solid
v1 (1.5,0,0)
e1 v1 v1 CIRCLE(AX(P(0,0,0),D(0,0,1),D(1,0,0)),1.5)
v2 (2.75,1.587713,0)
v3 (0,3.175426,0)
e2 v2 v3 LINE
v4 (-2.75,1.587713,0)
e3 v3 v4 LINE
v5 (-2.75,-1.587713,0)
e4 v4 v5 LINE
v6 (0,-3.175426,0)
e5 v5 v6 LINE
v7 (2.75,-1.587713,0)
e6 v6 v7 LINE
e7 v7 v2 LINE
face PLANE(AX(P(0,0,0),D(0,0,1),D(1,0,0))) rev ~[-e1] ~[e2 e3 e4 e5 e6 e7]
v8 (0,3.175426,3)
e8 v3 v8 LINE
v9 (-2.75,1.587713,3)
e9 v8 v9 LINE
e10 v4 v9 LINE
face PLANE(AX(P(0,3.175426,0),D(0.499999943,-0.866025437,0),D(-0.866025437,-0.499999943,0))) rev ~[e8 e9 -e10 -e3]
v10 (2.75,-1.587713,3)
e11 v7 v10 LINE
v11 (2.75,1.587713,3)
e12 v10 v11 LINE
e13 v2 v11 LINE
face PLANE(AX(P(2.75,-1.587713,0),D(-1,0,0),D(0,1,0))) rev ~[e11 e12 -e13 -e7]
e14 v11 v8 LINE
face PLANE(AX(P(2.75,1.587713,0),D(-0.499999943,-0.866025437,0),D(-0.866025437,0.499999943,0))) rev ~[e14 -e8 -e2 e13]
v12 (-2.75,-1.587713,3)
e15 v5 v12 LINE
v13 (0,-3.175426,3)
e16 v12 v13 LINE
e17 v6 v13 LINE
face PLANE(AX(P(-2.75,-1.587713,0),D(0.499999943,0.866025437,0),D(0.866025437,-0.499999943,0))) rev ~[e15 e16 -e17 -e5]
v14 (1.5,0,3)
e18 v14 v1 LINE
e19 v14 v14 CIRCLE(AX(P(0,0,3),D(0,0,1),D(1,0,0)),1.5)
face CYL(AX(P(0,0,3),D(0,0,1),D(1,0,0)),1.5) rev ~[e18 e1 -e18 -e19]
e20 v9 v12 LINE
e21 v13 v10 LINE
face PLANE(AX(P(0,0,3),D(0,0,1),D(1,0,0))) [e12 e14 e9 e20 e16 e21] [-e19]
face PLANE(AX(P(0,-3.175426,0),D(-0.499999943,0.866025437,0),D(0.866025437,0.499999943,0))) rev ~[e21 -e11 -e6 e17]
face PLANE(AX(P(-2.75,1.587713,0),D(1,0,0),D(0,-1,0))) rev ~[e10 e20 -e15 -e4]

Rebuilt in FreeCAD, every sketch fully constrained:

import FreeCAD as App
import Part
import Sketcher

V = App.Vector
Q = App.Units.Quantity

doc = App.newDocument("Part")
body = doc.addObject("PartDesign::Body", "Body")

# Sketch on XY plane
sketch1 = body.newObject("Sketcher::SketchObject", "Sketch")
sketch1.AttachmentSupport = (doc.getObject("XY_Plane"), [""])
sketch1.MapMode = "FlatFace"
sketch1.addGeometry([
    Part.LineSegment(V(0, 3.175426, 0), V(-2.75, 1.587713, 0)),  # 0
    Part.LineSegment(V(-2.75, 1.587713, 0), V(-2.75, -1.587713, 0)),  # 1
    Part.LineSegment(V(-2.75, -1.587713, 0), V(0, -3.175426, 0)),  # 2
    Part.LineSegment(V(0, -3.175426, 0), V(2.75, -1.587713, 0)),  # 3
    Part.LineSegment(V(2.75, -1.587713, 0), V(2.75, 1.587713, 0)),  # 4
    Part.LineSegment(V(2.75, 1.587713, 0), V(0, 3.175426, 0)),  # 5
], False)
sketch1.addConstraint([
    Sketcher.Constraint("Coincident", 0, 2, 1, 1),
    Sketcher.Constraint("Coincident", 1, 2, 2, 1),
    Sketcher.Constraint("Coincident", 2, 2, 3, 1),
    Sketcher.Constraint("Coincident", 3, 2, 4, 1),
    Sketcher.Constraint("Coincident", 4, 2, 5, 1),
    Sketcher.Constraint("Coincident", 5, 2, 0, 1),
    Sketcher.Constraint("Vertical", 1),
    Sketcher.Constraint("Vertical", 4),
    Sketcher.Constraint("Symmetric", 0, 2, 3, 2, -1, 1),
    Sketcher.Constraint("Symmetric", 2, 2, 5, 2, -1, 1),
    Sketcher.Constraint("PointOnObject", 2, 2, -2),
    Sketcher.Constraint("Parallel", 2, 5),
    Sketcher.Constraint("Horizontal", 1, 2, 3, 2),
    Sketcher.Constraint("Angle", 0, Q("-150.000004 deg")),
    Sketcher.Constraint("DistanceX", 1, 2, 3, 2, Q("5.5 mm")),
    Sketcher.Constraint("DistanceY", 1, 2, 1, 1, Q("3.175426 mm")),
])
pad1 = body.newObject("PartDesign::Pad", "Pad")
pad1.Profile = sketch1
pad1.Length = 3

# Sketch on XY plane
sketch2 = body.newObject("Sketcher::SketchObject", "Sketch001")
sketch2.AttachmentSupport = (doc.getObject("XY_Plane"), [""])
sketch2.MapMode = "FlatFace"
sketch2.AttachmentOffset = App.Placement(V(0, 0, 3), App.Rotation())
sketch2.addGeometry(Part.Circle(V(0, 0, 0), V(0, 0, 1), 1.5), False)
sketch2.addConstraint([
    Sketcher.Constraint("Coincident", 0, 3, -1, 1),
    Sketcher.Constraint("Diameter", 0, Q("3 mm")),
])
pocket1 = body.newObject("PartDesign::Pocket", "Pocket")
pocket1.Profile = sketch2
pocket1.Type = "ThroughAll"

doc.recompute()
